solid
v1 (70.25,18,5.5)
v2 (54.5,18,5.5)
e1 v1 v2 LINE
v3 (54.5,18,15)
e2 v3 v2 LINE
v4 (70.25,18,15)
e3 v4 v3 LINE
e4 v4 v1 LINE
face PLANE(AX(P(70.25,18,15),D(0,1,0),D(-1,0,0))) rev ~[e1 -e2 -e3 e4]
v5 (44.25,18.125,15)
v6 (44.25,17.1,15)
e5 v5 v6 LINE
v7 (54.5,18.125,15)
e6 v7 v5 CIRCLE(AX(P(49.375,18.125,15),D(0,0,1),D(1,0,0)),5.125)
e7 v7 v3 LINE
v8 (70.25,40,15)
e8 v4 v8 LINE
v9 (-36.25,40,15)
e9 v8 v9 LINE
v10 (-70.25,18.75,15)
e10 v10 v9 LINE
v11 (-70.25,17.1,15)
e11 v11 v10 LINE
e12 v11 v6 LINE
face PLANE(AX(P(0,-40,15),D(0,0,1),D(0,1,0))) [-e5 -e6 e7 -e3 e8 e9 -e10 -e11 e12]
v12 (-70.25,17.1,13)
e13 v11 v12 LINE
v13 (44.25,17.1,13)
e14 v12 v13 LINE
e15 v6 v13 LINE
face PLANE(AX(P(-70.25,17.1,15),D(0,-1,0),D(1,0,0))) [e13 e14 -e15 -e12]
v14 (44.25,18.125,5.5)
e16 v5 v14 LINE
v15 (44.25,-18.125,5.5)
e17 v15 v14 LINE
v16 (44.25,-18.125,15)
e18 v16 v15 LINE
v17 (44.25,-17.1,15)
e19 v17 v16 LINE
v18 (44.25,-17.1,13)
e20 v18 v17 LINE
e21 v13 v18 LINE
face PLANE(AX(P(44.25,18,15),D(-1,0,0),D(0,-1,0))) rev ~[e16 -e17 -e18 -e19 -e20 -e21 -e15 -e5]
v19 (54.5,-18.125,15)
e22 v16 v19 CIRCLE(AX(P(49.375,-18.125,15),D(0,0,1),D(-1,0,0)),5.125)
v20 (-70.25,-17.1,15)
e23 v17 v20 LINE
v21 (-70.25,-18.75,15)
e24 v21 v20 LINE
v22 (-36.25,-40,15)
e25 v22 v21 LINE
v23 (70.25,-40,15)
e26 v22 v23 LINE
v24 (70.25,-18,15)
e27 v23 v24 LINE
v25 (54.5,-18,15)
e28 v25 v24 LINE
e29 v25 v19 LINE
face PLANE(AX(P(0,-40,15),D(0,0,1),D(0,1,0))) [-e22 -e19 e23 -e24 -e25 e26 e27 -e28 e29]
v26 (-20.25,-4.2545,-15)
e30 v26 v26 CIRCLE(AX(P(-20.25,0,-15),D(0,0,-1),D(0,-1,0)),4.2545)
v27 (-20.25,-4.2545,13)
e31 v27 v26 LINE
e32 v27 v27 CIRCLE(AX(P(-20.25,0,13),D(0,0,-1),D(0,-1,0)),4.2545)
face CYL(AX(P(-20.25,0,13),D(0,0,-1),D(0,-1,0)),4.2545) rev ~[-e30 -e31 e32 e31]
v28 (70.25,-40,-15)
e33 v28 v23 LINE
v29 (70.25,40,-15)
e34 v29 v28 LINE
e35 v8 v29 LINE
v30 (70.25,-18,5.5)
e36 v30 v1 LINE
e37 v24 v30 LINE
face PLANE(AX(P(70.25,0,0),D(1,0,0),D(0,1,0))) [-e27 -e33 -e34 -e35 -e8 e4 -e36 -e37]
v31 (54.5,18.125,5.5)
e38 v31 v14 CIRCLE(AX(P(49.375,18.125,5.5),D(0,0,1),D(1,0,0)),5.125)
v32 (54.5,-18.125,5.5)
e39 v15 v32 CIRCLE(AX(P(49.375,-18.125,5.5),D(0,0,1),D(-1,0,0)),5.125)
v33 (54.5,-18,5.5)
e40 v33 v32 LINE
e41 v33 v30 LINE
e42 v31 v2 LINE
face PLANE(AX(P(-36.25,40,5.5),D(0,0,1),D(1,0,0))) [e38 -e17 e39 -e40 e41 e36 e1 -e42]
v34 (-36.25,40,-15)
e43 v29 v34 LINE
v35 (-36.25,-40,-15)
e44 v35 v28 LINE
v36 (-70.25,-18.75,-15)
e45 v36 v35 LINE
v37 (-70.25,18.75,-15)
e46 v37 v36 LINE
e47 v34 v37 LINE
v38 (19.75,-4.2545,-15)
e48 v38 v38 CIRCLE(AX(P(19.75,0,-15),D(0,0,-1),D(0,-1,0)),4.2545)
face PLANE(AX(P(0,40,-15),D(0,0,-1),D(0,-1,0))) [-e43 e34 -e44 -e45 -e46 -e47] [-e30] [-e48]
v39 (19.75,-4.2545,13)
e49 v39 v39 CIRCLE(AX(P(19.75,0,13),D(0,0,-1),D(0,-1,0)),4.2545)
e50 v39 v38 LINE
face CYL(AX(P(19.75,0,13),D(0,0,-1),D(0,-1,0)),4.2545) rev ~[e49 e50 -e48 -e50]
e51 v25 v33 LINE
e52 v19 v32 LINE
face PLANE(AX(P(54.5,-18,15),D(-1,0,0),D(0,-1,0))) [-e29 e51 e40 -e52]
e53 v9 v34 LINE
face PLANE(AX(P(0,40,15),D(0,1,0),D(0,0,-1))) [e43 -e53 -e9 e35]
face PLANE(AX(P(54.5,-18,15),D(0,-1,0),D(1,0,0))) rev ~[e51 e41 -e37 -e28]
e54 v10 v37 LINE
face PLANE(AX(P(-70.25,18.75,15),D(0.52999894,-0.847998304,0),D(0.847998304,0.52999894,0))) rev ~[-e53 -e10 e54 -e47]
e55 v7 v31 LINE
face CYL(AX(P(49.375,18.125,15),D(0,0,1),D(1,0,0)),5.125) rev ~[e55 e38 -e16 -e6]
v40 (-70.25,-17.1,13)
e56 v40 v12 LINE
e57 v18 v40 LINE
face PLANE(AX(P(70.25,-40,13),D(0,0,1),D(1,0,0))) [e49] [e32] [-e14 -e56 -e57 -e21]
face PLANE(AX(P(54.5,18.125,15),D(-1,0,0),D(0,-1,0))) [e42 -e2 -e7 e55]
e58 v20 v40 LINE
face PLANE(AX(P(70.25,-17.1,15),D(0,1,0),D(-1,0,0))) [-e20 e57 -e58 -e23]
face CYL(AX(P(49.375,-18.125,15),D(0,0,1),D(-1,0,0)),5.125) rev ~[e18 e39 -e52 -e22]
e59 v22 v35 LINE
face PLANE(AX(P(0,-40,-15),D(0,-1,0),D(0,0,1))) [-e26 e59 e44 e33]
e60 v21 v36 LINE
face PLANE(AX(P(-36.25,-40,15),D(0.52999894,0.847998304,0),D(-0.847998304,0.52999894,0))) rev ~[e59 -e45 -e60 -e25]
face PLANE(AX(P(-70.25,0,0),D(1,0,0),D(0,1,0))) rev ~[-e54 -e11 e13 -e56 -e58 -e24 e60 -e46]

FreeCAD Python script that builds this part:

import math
import FreeCAD as App
import Part
import Sketcher
from FreeCAD import Vector
Q = App.Units.Quantity


def add_polygon(sketch, points):
    """Adds a closed chain of lines whose ends are joined by coincident constraints."""
    first, n = sketch.GeometryCount, len(points)
    for a, b in zip(points, points[1:] + points[:1]):
        sketch.addGeometry(Part.LineSegment(App.Vector(*a, 0), App.Vector(*b, 0)), False)
    for i in range(n):
        sketch.addConstraint(Sketcher.Constraint("Coincident", first + i, 2, first + (i + 1) % n, 1))

doc = App.newDocument("Part")
params = doc.addObject("Spreadsheet::Sheet", "Params")
for row, (alias, value) in enumerate([
    ("sketch1_width", "80 mm"),
    ("sketch1_height", "30 mm"),
    ("pad1_length", "140.5 mm"),
    ("sketch2_width", "34 mm"),
    ("sketch3_height", "34.2 mm"),
    ("sketch3_width", "140.5 mm"),
    ("pocket2_length", "2 mm"),
    ("sketch4_height", "36 mm"),
    ("sketch4_width", "15.75 mm"),
    ("sketch4_height2", "36.25 mm"),
    ("pocket3_length", "9.5 mm"),
    ("hole_diameter", "8.509 mm"),
], start=1):
    params.set(f"A{row}", alias)
    params.set(f"B{row}", "=" + value)
    params.setAlias(f"B{row}", alias)

body = doc.addObject("PartDesign::Body", "Body")

sketch1 = body.newObject("Sketcher::SketchObject", "Sketch")
sketch1.AttachmentSupport = (doc.getObject("YZ_Plane"), [""])
sketch1.MapMode = "FlatFace"
add_polygon(sketch1, [(40, 15), (-40, 15), (-40, -15), (40, -15)])
sketch1.addConstraint([
    Sketcher.Constraint("Horizontal", 0),
    Sketcher.Constraint("Vertical", 1),
    Sketcher.Constraint("Horizontal", 2),
    Sketcher.Constraint("Vertical", 3),
    Sketcher.Constraint("Symmetric", 0, 2, 2, 2, -1, 1),
    Sketcher.Constraint("DistanceX", 0, 2, 0, 1, Q("80 mm")),
    Sketcher.Constraint("DistanceY", 1, 2, 1, 1, Q("30 mm")),
])
sketch1.setExpression("Constraints[9]", "Params.sketch1_width")
sketch1.setExpression("Constraints[10]", "Params.sketch1_height")
pad1 = body.newObject("PartDesign::Pad", "Pad")
pad1.Profile = sketch1
pad1.setExpression("Length", "Params.pad1_length")
pad1.Midplane = True

sketch2 = body.newObject("Sketcher::SketchObject", "Sketch001")
sketch2.AttachmentSupport = (doc.getObject("XY_Plane"), [""])
sketch2.MapMode = "FlatFace"
sketch2.AttachmentOffset = App.Placement(Vector(0, 0, 15), App.Rotation())
add_polygon(sketch2, [(-36, 40), (-70, 40), (-70, 19)])
add_polygon(sketch2, [(-36, -40), (-70, -19), (-70, -40)])
sketch2.addConstraint([
    Sketcher.Constraint("Horizontal", 0),
    Sketcher.Constraint("Vertical", 1),
    Sketcher.Constraint("Vertical", 4),
    Sketcher.Constraint("Horizontal", 5),
    Sketcher.Constraint("Symmetric", 1, 2, 3, 2, -1),
    Sketcher.Constraint("Symmetric", 2, 2, 5, 2, -1),
    Sketcher.Constraint("DistanceY", 3, 2, 1, 2, Q("37.5 mm")),
    Sketcher.Constraint("DistanceX", 0, 2, 0, 1, Q("34 mm")),
    Sketcher.Constraint("DistanceY", -1, 1, 0, 2, Q("40 mm")),
    Sketcher.Constraint("DistanceX", 0, 2, -1, 1, Q("70.25 mm")),
])
sketch2.setExpression("Constraints[13]", "Params.sketch2_width")
pocket1 = body.newObject("PartDesign::Pocket", "Pocket")
pocket1.Profile = sketch2
pocket1.Type = "ThroughAll"

sketch3 = body.newObject("Sketcher::SketchObject", "Sketch002")
sketch3.AttachmentSupport = (doc.getObject("XY_Plane"), [""])
sketch3.MapMode = "FlatFace"
sketch3.AttachmentOffset = App.Placement(Vector(0, 0, 15), App.Rotation())
add_polygon(sketch3, [(70, 17), (-70, 17), (-70, -17), (70, -17)])
sketch3.addConstraint([
    Sketcher.Constraint("Horizontal", 0),
    Sketcher.Constraint("Vertical", 1),
    Sketcher.Constraint("Horizontal", 2),
    Sketcher.Constraint("Vertical", 3),
    Sketcher.Constraint("Symmetric", 0, 2, 2, 2, -1, 1),
    Sketcher.Constraint("DistanceY", 1, 2, 1, 1, Q("34.2 mm")),
    Sketcher.Constraint("DistanceX", 0, 2, 0, 1, Q("140.5 mm")),
])
sketch3.setExpression("Constraints[9]", "Params.sketch3_height")
sketch3.setExpression("Constraints[10]", "Params.sketch3_width")
pocket2 = body.newObject("PartDesign::Pocket", "Pocket001")
pocket2.Profile = sketch3
pocket2.setExpression("Length", "Params.pocket2_length")

sketch4 = body.newObject("Sketcher::SketchObject", "Sketch003")
sketch4.AttachmentSupport = (doc.getObject("XY_Plane"), [""])
sketch4.MapMode = "FlatFace"
sketch4.AttachmentOffset = App.Placement(Vector(0, 0, 15), App.Rotation())
sketch4.addGeometry([
    Part.LineSegment(Vector(70.25, -18, 0), Vector(70.25, 18, 0)),
    Part.LineSegment(Vector(70.25, 18, 0), Vector(54.5, 18, 0)),
    Part.LineSegment(Vector(54.5, 18, 0), Vector(54.5, 18.12, 0)),
    Part.ArcOfCircle(Part.Circle(Vector(49.38, 18.12, 0), Vector(0, 0, 1), 5.12), math.radians(0), math.radians(180)),
    Part.LineSegment(Vector(44.25, 18.12, 0), Vector(44.25, -18.12, 0)),
    Part.ArcOfCircle(Part.Circle(Vector(49.38, -18.12, 0), Vector(0, 0, 1), 5.12), math.radians(180), math.radians(360)),
    Part.LineSegment(Vector(54.5, -18.12, 0), Vector(54.5, -18, 0)),
    Part.LineSegment(Vector(54.5, -18, 0), Vector(70.25, -18, 0)),
], False)
sketch4.addConstraint([
    Sketcher.Constraint("Coincident", 0, 2, 1, 1),
    Sketcher.Constraint("Coincident", 1, 2, 2, 1),
    Sketcher.Constraint("Tangent", 2, 2, 3, 1),
    Sketcher.Constraint("Tangent", 3, 2, 4, 1),
    Sketcher.Constraint("Tangent", 4, 2, 5, 1),
    Sketcher.Constraint("Tangent", 5, 2, 6, 1),
    Sketcher.Constraint("Coincident", 6, 2, 7, 1),
    Sketcher.Constraint("Coincident", 7, 2, 0, 1),
    Sketcher.Constraint("Vertical", 0),
    Sketcher.Constraint("Horizontal", 1),
    Sketcher.Constraint("Vertical", 2),
    Sketcher.Constraint("Vertical", 4),
    Sketcher.Constraint("Vertical", 6),
    Sketcher.Constraint("Horizontal", 7),
    Sketcher.Constraint("Equal", 3, 5),
    Sketcher.Constraint("Equal", 2, 6),
    Sketcher.Constraint("DistanceY", 0, 1, 0, 2, Q("36 mm")),
    Sketcher.Constraint("DistanceX", 3, 2, 0, 2, Q("26 mm")),
    Sketcher.Constraint("DistanceX", 1, 2, 1, 1, Q("15.75 mm")),
    Sketcher.Constraint("DistanceY", -1, 1, 0, 2, Q("18 mm")),
    Sketcher.Constraint("DistanceY", 4, 2, 4, 1, Q("36.25 mm")),
    Sketcher.Constraint("DistanceX", -1, 1, 1, 2, Q("54.5 mm")),
])
sketch4.setExpression("Constraints[16]", "Params.sketch4_height")
sketch4.setExpression("Constraints[18]", "Params.sketch4_width")
sketch4.setExpression("Constraints[20]", "Params.sketch4_height2")
pocket3 = body.newObject("PartDesign::Pocket", "Pocket002")
pocket3.Profile = sketch4
pocket3.setExpression("Length", "Params.pocket3_length")

sketch5 = body.newObject("Sketcher::SketchObject", "Sketch004")
sketch5.AttachmentSupport = (doc.getObject("XY_Plane"), [""])
sketch5.MapMode = "FlatFace"
sketch5.AttachmentOffset = App.Placement(Vector(0, 0, 13), App.Rotation())
sketch5.addGeometry([
    Part.Circle(Vector(-20.2, 0, 0), Vector(0, 0, 1), 4.3),
    Part.Circle(Vector(19.8, 0, 0), Vector(0, 0, 1), 4.3),
], False)
sketch5.addConstraint([
    Sketcher.Constraint("Equal", 0, 1),
    Sketcher.Constraint("PointOnObject", 0, 3, -1),
    Sketcher.Constraint("PointOnObject", 1, 3, -1),
    Sketcher.Constraint("Diameter", 0, Q("8.509 mm")),
    Sketcher.Constraint("DistanceX", 0, 3, 1, 3, Q("40 mm")),
    Sketcher.Constraint("DistanceX", 0, 3, -1, 1, Q("20.25 mm")),
])
doc.recompute()
hole = body.newObject("PartDesign::Hole", "Hole")
hole.Profile = sketch5
hole.ThreadType = "None"
hole.setExpression("Diameter", "Params.hole_diameter")
hole.DepthType = "ThroughAll"

doc.recompute()
